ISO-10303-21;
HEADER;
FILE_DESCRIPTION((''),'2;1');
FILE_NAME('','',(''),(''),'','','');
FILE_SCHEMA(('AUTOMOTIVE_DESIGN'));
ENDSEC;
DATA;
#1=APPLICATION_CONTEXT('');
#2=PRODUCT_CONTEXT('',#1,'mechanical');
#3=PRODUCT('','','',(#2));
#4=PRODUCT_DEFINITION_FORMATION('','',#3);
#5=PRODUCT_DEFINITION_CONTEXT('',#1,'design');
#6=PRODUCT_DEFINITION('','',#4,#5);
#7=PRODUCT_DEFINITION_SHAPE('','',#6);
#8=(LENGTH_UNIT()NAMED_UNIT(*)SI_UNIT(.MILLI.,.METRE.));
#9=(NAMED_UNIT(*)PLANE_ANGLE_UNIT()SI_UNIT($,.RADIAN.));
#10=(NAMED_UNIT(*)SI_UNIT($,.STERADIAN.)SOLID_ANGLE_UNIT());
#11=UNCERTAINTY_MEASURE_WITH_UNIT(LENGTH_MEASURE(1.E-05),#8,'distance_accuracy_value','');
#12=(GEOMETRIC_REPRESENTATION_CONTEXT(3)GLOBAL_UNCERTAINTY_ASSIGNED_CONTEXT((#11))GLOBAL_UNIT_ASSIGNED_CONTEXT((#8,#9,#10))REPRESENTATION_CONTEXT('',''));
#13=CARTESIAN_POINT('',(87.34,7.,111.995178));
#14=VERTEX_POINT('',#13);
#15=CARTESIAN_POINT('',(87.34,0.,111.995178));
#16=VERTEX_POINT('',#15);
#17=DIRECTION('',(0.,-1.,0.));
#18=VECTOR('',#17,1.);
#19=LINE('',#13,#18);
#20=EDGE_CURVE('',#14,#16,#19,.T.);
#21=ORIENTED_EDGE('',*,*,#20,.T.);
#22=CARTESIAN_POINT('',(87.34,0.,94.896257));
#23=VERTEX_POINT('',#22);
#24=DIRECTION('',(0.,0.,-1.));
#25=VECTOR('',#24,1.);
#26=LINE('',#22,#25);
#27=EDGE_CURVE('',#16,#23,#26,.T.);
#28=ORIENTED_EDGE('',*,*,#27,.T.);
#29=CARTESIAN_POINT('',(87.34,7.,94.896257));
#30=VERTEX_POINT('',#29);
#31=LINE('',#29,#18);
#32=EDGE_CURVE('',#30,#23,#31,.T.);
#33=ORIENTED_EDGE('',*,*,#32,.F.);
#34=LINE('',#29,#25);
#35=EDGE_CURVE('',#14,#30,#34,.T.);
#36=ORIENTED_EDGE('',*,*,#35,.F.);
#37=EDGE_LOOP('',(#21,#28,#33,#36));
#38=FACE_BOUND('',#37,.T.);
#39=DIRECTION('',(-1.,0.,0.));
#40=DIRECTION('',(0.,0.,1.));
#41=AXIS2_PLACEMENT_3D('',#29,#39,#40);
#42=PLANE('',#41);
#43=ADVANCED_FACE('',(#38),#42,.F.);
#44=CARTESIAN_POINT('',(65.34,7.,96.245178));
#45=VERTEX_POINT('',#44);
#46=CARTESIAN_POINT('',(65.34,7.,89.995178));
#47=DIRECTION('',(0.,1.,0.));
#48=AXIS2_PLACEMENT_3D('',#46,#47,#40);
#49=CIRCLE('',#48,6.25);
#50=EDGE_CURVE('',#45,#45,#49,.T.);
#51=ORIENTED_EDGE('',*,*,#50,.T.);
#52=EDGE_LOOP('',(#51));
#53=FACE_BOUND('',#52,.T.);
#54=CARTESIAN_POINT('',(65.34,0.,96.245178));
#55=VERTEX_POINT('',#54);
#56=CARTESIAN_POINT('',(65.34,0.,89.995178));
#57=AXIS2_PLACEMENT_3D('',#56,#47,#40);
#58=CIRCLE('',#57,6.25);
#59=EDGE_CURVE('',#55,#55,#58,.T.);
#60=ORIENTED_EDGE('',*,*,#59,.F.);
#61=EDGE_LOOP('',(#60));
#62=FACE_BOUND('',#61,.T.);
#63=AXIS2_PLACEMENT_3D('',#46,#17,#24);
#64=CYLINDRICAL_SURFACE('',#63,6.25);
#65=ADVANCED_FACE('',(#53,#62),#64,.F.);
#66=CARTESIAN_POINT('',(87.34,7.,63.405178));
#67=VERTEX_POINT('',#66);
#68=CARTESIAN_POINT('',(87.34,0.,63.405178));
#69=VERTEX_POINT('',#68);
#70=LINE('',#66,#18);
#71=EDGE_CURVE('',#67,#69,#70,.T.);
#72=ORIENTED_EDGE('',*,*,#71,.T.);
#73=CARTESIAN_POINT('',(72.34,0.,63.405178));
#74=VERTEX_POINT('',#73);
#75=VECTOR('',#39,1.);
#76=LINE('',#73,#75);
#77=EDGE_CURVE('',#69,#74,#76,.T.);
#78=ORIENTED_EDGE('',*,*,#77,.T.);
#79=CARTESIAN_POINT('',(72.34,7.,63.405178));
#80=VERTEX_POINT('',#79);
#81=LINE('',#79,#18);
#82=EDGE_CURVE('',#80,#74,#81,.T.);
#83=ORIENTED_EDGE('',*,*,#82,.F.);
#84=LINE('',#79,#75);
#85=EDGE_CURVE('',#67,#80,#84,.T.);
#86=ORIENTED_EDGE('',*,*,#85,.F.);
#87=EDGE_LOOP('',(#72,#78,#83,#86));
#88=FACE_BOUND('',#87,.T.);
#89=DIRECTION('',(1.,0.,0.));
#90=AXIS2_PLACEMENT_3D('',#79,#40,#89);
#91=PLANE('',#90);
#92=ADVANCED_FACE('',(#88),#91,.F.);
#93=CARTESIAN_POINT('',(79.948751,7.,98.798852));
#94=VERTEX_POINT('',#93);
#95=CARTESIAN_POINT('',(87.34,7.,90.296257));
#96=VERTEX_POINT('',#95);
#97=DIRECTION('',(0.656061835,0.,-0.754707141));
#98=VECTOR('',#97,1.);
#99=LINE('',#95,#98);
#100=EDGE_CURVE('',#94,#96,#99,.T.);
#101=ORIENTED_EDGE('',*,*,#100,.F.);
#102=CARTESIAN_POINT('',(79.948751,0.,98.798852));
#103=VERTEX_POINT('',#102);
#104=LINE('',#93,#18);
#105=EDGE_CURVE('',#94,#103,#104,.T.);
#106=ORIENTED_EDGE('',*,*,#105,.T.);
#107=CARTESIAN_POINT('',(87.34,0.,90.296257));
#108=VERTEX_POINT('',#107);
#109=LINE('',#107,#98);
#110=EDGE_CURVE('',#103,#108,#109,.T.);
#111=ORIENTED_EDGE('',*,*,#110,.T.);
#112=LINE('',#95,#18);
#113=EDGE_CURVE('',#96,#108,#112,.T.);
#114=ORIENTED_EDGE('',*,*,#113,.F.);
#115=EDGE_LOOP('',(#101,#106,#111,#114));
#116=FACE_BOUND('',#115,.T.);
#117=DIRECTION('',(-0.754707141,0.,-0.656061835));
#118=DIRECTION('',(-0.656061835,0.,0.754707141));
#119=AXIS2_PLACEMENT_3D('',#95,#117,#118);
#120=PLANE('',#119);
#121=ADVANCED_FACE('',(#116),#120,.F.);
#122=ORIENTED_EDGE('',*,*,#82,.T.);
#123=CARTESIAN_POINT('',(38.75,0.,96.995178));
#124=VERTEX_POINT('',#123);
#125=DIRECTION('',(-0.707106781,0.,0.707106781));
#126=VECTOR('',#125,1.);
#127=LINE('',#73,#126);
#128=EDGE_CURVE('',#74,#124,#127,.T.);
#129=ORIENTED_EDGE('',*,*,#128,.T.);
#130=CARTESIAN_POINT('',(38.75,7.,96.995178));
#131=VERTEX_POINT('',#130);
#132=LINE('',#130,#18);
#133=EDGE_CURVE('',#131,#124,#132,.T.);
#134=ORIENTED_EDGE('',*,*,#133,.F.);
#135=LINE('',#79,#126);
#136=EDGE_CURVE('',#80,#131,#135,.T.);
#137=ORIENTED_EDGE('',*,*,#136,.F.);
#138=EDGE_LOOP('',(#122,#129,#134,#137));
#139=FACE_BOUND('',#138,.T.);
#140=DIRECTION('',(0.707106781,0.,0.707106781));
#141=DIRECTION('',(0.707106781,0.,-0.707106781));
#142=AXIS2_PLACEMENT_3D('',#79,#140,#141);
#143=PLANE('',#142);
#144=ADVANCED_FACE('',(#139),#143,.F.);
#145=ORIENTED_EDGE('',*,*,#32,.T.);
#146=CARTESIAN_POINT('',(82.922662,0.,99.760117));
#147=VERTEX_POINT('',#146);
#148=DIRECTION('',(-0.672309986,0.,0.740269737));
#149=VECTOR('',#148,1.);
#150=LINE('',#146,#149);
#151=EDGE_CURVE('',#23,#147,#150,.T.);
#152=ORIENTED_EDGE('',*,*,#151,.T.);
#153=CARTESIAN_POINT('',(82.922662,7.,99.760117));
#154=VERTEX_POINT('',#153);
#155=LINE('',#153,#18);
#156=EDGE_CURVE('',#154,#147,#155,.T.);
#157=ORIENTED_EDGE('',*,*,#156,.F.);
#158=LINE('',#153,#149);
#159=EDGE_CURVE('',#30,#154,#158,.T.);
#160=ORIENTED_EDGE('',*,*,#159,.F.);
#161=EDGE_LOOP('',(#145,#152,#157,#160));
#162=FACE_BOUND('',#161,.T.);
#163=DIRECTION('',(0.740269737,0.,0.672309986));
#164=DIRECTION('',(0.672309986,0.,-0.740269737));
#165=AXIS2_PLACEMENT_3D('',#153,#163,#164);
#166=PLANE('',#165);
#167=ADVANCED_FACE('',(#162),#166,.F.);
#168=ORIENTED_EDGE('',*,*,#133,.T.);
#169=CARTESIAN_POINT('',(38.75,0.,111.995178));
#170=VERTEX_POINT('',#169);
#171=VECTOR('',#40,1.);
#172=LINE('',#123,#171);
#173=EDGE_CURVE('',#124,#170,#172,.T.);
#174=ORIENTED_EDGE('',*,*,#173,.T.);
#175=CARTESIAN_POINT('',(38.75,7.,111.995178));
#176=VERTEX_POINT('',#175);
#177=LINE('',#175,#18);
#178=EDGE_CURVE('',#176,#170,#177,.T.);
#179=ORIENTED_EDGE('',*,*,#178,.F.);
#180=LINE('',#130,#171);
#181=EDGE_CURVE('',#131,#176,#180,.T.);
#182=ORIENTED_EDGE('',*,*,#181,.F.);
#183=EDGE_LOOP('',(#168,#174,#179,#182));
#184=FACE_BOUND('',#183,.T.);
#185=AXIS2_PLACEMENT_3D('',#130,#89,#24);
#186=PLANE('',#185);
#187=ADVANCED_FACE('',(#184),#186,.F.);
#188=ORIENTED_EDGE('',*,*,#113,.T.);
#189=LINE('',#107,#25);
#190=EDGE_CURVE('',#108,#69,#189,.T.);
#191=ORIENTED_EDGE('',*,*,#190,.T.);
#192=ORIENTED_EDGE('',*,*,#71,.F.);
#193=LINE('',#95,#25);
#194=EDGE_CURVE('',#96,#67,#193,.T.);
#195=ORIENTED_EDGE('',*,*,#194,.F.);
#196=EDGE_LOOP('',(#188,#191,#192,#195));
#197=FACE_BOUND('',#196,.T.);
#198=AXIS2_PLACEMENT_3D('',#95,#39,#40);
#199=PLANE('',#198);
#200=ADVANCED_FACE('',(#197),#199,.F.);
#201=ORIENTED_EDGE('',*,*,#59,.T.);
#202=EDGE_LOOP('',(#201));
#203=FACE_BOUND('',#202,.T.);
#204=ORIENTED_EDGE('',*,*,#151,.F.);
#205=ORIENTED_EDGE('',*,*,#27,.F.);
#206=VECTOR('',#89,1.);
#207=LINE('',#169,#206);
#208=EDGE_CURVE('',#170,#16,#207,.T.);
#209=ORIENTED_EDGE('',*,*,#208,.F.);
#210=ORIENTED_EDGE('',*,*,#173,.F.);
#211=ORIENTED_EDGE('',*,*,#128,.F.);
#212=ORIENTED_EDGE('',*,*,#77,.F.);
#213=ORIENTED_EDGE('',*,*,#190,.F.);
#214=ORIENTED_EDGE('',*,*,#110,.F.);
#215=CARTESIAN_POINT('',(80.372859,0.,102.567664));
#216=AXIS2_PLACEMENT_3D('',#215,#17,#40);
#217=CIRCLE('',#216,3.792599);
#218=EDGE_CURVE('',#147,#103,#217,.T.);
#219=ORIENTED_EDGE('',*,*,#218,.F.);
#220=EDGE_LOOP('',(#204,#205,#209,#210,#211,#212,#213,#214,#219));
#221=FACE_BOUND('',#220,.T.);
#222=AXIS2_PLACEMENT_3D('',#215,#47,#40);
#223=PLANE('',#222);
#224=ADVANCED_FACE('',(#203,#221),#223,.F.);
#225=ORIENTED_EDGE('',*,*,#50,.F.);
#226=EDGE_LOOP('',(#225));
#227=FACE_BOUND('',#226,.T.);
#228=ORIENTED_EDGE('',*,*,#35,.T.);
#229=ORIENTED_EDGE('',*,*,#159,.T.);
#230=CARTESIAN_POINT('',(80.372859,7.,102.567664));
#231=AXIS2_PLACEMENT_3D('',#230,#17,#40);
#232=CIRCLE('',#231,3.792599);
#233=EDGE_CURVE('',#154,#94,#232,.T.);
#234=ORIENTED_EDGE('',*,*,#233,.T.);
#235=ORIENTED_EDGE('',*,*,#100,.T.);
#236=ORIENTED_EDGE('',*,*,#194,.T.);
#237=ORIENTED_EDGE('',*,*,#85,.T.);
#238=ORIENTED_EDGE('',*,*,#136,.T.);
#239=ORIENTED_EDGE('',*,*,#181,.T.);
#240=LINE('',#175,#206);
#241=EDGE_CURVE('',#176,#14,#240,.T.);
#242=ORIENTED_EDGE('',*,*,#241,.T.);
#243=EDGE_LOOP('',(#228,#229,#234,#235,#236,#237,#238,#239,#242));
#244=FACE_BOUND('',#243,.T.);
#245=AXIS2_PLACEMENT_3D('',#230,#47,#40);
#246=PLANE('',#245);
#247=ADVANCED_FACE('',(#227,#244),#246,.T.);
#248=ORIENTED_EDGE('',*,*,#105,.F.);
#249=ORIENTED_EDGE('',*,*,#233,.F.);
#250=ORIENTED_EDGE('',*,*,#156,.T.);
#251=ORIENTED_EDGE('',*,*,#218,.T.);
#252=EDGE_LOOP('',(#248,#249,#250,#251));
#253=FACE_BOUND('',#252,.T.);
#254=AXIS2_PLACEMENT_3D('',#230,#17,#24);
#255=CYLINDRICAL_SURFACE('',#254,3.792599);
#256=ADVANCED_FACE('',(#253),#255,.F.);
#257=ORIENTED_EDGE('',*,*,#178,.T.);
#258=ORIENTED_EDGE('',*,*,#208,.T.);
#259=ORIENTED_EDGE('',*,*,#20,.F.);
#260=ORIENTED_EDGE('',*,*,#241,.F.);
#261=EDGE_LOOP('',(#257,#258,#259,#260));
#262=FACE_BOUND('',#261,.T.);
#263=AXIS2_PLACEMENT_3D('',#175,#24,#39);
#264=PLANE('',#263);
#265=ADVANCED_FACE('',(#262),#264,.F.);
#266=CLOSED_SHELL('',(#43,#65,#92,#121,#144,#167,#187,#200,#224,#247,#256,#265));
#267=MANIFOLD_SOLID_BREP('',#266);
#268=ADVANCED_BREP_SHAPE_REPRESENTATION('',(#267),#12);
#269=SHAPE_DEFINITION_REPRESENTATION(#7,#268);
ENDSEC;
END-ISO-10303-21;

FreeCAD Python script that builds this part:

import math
import FreeCAD as App
import Part
import Sketcher
Q = App.Units.Quantity

doc = App.newDocument("Part")
body = doc.addObject("PartDesign::Body", "Body")

# Sketch on XZ plane
sketch1 = body.newObject("Sketcher::SketchObject", "Sketch")
sketch1.AttachmentSupport = (doc.getObject("XZ_Plane"), [""])
sketch1.MapMode = "FlatFace"
sketch1.addGeometry([
    Part.LineSegment(App.Vector(72.3, 63.4, 0), App.Vector(38.8, 97, 0)),  # 0
    Part.LineSegment(App.Vector(38.8, 97, 0), App.Vector(38.8, 112, 0)),  # 1
    Part.LineSegment(App.Vector(38.8, 112, 0), App.Vector(87.3, 112, 0)),  # 2
    Part.LineSegment(App.Vector(87.3, 112, 0), App.Vector(87.3, 94.9, 0)),  # 3
    Part.LineSegment(App.Vector(87.3, 94.9, 0), App.Vector(82.9, 99.8, 0)),  # 4
    Part.ArcOfCircle(Part.Circle(App.Vector(80.4, 102.6, 0), App.Vector(0, 0, 1), 3.8), math.radians(-48), math.radians(264)),  # 5
    Part.LineSegment(App.Vector(79.9, 98.8, 0), App.Vector(87.3, 90.3, 0)),  # 6
    Part.LineSegment(App.Vector(87.3, 90.3, 0), App.Vector(87.3, 63.4, 0)),  # 7
    Part.LineSegment(App.Vector(87.3, 63.4, 0), App.Vector(72.3, 63.4, 0)),  # 8
    Part.Circle(App.Vector(65.3, 90, 0), App.Vector(0, 0, 1), 6.2),  # 9
], False)
sketch1.addConstraint([
    Sketcher.Constraint("Coincident", 0, 2, 1, 1),
    Sketcher.Constraint("Coincident", 1, 2, 2, 1),
    Sketcher.Constraint("Coincident", 2, 2, 3, 1),
    Sketcher.Constraint("Coincident", 3, 2, 4, 1),
    Sketcher.Constraint("Coincident", 4, 2, 5, 1),
    Sketcher.Constraint("Coincident", 5, 2, 6, 1),
    Sketcher.Constraint("Coincident", 6, 2, 7, 1),
    Sketcher.Constraint("Coincident", 7, 2, 8, 1),
    Sketcher.Constraint("Coincident", 8, 2, 0, 1),
    Sketcher.Constraint("Vertical", 1),
    Sketcher.Constraint("Horizontal", 2),
    Sketcher.Constraint("Vertical", 3),
    Sketcher.Constraint("Vertical", 7),
    Sketcher.Constraint("Horizontal", 8),
    Sketcher.Constraint("Vertical", 3, 2, 6, 2),
    Sketcher.Constraint("Equal", 8, 1),
    Sketcher.Constraint("Diameter", 9, Q("12.5 mm")),
    Sketcher.Constraint("DistanceX", 8, 2, 8, 1, Q("15 mm")),
    Sketcher.Constraint("Angle", 0, Q("135 deg")),
    Sketcher.Constraint("DistanceY", 9, 3, 0, 2, Q("7 mm")),
    Sketcher.Constraint("DistanceX", 9, 3, 2, 2, Q("22 mm")),
    Sketcher.Constraint("DistanceX", 2, 1, 2, 2, Q("48.59 mm")),
    Sketcher.Constraint("Radius", 5, Q("3.792599 mm")),
    Sketcher.Constraint("DistanceY", 6, 2, 3, 2, Q("4.6 mm")),
    Sketcher.Constraint("DistanceX", -1, 1, 9, 3, Q("65.34 mm")),
    Sketcher.Constraint("DistanceY", 3, 2, 3, 1, Q("17.098921 mm")),
    Sketcher.Constraint("Distance", 4, Q("6.57039 mm")),
    Sketcher.Constraint("DistanceX", -1, 1, 5, 3, Q("80.372859 mm")),
    Sketcher.Constraint("DistanceY", -1, 1, 9, 3, Q("89.995178 mm")),
    Sketcher.Constraint("DistanceX", -1, 1, 4, 2, Q("82.922662 mm")),
    Sketcher.Constraint("DistanceX", -1, 1, 5, 2, Q("79.948751 mm")),
])
pad1 = body.newObject("PartDesign::Pad", "Pad")
pad1.Profile = sketch1
pad1.Length = 7
pad1.Reversed = True

doc.recompute()
